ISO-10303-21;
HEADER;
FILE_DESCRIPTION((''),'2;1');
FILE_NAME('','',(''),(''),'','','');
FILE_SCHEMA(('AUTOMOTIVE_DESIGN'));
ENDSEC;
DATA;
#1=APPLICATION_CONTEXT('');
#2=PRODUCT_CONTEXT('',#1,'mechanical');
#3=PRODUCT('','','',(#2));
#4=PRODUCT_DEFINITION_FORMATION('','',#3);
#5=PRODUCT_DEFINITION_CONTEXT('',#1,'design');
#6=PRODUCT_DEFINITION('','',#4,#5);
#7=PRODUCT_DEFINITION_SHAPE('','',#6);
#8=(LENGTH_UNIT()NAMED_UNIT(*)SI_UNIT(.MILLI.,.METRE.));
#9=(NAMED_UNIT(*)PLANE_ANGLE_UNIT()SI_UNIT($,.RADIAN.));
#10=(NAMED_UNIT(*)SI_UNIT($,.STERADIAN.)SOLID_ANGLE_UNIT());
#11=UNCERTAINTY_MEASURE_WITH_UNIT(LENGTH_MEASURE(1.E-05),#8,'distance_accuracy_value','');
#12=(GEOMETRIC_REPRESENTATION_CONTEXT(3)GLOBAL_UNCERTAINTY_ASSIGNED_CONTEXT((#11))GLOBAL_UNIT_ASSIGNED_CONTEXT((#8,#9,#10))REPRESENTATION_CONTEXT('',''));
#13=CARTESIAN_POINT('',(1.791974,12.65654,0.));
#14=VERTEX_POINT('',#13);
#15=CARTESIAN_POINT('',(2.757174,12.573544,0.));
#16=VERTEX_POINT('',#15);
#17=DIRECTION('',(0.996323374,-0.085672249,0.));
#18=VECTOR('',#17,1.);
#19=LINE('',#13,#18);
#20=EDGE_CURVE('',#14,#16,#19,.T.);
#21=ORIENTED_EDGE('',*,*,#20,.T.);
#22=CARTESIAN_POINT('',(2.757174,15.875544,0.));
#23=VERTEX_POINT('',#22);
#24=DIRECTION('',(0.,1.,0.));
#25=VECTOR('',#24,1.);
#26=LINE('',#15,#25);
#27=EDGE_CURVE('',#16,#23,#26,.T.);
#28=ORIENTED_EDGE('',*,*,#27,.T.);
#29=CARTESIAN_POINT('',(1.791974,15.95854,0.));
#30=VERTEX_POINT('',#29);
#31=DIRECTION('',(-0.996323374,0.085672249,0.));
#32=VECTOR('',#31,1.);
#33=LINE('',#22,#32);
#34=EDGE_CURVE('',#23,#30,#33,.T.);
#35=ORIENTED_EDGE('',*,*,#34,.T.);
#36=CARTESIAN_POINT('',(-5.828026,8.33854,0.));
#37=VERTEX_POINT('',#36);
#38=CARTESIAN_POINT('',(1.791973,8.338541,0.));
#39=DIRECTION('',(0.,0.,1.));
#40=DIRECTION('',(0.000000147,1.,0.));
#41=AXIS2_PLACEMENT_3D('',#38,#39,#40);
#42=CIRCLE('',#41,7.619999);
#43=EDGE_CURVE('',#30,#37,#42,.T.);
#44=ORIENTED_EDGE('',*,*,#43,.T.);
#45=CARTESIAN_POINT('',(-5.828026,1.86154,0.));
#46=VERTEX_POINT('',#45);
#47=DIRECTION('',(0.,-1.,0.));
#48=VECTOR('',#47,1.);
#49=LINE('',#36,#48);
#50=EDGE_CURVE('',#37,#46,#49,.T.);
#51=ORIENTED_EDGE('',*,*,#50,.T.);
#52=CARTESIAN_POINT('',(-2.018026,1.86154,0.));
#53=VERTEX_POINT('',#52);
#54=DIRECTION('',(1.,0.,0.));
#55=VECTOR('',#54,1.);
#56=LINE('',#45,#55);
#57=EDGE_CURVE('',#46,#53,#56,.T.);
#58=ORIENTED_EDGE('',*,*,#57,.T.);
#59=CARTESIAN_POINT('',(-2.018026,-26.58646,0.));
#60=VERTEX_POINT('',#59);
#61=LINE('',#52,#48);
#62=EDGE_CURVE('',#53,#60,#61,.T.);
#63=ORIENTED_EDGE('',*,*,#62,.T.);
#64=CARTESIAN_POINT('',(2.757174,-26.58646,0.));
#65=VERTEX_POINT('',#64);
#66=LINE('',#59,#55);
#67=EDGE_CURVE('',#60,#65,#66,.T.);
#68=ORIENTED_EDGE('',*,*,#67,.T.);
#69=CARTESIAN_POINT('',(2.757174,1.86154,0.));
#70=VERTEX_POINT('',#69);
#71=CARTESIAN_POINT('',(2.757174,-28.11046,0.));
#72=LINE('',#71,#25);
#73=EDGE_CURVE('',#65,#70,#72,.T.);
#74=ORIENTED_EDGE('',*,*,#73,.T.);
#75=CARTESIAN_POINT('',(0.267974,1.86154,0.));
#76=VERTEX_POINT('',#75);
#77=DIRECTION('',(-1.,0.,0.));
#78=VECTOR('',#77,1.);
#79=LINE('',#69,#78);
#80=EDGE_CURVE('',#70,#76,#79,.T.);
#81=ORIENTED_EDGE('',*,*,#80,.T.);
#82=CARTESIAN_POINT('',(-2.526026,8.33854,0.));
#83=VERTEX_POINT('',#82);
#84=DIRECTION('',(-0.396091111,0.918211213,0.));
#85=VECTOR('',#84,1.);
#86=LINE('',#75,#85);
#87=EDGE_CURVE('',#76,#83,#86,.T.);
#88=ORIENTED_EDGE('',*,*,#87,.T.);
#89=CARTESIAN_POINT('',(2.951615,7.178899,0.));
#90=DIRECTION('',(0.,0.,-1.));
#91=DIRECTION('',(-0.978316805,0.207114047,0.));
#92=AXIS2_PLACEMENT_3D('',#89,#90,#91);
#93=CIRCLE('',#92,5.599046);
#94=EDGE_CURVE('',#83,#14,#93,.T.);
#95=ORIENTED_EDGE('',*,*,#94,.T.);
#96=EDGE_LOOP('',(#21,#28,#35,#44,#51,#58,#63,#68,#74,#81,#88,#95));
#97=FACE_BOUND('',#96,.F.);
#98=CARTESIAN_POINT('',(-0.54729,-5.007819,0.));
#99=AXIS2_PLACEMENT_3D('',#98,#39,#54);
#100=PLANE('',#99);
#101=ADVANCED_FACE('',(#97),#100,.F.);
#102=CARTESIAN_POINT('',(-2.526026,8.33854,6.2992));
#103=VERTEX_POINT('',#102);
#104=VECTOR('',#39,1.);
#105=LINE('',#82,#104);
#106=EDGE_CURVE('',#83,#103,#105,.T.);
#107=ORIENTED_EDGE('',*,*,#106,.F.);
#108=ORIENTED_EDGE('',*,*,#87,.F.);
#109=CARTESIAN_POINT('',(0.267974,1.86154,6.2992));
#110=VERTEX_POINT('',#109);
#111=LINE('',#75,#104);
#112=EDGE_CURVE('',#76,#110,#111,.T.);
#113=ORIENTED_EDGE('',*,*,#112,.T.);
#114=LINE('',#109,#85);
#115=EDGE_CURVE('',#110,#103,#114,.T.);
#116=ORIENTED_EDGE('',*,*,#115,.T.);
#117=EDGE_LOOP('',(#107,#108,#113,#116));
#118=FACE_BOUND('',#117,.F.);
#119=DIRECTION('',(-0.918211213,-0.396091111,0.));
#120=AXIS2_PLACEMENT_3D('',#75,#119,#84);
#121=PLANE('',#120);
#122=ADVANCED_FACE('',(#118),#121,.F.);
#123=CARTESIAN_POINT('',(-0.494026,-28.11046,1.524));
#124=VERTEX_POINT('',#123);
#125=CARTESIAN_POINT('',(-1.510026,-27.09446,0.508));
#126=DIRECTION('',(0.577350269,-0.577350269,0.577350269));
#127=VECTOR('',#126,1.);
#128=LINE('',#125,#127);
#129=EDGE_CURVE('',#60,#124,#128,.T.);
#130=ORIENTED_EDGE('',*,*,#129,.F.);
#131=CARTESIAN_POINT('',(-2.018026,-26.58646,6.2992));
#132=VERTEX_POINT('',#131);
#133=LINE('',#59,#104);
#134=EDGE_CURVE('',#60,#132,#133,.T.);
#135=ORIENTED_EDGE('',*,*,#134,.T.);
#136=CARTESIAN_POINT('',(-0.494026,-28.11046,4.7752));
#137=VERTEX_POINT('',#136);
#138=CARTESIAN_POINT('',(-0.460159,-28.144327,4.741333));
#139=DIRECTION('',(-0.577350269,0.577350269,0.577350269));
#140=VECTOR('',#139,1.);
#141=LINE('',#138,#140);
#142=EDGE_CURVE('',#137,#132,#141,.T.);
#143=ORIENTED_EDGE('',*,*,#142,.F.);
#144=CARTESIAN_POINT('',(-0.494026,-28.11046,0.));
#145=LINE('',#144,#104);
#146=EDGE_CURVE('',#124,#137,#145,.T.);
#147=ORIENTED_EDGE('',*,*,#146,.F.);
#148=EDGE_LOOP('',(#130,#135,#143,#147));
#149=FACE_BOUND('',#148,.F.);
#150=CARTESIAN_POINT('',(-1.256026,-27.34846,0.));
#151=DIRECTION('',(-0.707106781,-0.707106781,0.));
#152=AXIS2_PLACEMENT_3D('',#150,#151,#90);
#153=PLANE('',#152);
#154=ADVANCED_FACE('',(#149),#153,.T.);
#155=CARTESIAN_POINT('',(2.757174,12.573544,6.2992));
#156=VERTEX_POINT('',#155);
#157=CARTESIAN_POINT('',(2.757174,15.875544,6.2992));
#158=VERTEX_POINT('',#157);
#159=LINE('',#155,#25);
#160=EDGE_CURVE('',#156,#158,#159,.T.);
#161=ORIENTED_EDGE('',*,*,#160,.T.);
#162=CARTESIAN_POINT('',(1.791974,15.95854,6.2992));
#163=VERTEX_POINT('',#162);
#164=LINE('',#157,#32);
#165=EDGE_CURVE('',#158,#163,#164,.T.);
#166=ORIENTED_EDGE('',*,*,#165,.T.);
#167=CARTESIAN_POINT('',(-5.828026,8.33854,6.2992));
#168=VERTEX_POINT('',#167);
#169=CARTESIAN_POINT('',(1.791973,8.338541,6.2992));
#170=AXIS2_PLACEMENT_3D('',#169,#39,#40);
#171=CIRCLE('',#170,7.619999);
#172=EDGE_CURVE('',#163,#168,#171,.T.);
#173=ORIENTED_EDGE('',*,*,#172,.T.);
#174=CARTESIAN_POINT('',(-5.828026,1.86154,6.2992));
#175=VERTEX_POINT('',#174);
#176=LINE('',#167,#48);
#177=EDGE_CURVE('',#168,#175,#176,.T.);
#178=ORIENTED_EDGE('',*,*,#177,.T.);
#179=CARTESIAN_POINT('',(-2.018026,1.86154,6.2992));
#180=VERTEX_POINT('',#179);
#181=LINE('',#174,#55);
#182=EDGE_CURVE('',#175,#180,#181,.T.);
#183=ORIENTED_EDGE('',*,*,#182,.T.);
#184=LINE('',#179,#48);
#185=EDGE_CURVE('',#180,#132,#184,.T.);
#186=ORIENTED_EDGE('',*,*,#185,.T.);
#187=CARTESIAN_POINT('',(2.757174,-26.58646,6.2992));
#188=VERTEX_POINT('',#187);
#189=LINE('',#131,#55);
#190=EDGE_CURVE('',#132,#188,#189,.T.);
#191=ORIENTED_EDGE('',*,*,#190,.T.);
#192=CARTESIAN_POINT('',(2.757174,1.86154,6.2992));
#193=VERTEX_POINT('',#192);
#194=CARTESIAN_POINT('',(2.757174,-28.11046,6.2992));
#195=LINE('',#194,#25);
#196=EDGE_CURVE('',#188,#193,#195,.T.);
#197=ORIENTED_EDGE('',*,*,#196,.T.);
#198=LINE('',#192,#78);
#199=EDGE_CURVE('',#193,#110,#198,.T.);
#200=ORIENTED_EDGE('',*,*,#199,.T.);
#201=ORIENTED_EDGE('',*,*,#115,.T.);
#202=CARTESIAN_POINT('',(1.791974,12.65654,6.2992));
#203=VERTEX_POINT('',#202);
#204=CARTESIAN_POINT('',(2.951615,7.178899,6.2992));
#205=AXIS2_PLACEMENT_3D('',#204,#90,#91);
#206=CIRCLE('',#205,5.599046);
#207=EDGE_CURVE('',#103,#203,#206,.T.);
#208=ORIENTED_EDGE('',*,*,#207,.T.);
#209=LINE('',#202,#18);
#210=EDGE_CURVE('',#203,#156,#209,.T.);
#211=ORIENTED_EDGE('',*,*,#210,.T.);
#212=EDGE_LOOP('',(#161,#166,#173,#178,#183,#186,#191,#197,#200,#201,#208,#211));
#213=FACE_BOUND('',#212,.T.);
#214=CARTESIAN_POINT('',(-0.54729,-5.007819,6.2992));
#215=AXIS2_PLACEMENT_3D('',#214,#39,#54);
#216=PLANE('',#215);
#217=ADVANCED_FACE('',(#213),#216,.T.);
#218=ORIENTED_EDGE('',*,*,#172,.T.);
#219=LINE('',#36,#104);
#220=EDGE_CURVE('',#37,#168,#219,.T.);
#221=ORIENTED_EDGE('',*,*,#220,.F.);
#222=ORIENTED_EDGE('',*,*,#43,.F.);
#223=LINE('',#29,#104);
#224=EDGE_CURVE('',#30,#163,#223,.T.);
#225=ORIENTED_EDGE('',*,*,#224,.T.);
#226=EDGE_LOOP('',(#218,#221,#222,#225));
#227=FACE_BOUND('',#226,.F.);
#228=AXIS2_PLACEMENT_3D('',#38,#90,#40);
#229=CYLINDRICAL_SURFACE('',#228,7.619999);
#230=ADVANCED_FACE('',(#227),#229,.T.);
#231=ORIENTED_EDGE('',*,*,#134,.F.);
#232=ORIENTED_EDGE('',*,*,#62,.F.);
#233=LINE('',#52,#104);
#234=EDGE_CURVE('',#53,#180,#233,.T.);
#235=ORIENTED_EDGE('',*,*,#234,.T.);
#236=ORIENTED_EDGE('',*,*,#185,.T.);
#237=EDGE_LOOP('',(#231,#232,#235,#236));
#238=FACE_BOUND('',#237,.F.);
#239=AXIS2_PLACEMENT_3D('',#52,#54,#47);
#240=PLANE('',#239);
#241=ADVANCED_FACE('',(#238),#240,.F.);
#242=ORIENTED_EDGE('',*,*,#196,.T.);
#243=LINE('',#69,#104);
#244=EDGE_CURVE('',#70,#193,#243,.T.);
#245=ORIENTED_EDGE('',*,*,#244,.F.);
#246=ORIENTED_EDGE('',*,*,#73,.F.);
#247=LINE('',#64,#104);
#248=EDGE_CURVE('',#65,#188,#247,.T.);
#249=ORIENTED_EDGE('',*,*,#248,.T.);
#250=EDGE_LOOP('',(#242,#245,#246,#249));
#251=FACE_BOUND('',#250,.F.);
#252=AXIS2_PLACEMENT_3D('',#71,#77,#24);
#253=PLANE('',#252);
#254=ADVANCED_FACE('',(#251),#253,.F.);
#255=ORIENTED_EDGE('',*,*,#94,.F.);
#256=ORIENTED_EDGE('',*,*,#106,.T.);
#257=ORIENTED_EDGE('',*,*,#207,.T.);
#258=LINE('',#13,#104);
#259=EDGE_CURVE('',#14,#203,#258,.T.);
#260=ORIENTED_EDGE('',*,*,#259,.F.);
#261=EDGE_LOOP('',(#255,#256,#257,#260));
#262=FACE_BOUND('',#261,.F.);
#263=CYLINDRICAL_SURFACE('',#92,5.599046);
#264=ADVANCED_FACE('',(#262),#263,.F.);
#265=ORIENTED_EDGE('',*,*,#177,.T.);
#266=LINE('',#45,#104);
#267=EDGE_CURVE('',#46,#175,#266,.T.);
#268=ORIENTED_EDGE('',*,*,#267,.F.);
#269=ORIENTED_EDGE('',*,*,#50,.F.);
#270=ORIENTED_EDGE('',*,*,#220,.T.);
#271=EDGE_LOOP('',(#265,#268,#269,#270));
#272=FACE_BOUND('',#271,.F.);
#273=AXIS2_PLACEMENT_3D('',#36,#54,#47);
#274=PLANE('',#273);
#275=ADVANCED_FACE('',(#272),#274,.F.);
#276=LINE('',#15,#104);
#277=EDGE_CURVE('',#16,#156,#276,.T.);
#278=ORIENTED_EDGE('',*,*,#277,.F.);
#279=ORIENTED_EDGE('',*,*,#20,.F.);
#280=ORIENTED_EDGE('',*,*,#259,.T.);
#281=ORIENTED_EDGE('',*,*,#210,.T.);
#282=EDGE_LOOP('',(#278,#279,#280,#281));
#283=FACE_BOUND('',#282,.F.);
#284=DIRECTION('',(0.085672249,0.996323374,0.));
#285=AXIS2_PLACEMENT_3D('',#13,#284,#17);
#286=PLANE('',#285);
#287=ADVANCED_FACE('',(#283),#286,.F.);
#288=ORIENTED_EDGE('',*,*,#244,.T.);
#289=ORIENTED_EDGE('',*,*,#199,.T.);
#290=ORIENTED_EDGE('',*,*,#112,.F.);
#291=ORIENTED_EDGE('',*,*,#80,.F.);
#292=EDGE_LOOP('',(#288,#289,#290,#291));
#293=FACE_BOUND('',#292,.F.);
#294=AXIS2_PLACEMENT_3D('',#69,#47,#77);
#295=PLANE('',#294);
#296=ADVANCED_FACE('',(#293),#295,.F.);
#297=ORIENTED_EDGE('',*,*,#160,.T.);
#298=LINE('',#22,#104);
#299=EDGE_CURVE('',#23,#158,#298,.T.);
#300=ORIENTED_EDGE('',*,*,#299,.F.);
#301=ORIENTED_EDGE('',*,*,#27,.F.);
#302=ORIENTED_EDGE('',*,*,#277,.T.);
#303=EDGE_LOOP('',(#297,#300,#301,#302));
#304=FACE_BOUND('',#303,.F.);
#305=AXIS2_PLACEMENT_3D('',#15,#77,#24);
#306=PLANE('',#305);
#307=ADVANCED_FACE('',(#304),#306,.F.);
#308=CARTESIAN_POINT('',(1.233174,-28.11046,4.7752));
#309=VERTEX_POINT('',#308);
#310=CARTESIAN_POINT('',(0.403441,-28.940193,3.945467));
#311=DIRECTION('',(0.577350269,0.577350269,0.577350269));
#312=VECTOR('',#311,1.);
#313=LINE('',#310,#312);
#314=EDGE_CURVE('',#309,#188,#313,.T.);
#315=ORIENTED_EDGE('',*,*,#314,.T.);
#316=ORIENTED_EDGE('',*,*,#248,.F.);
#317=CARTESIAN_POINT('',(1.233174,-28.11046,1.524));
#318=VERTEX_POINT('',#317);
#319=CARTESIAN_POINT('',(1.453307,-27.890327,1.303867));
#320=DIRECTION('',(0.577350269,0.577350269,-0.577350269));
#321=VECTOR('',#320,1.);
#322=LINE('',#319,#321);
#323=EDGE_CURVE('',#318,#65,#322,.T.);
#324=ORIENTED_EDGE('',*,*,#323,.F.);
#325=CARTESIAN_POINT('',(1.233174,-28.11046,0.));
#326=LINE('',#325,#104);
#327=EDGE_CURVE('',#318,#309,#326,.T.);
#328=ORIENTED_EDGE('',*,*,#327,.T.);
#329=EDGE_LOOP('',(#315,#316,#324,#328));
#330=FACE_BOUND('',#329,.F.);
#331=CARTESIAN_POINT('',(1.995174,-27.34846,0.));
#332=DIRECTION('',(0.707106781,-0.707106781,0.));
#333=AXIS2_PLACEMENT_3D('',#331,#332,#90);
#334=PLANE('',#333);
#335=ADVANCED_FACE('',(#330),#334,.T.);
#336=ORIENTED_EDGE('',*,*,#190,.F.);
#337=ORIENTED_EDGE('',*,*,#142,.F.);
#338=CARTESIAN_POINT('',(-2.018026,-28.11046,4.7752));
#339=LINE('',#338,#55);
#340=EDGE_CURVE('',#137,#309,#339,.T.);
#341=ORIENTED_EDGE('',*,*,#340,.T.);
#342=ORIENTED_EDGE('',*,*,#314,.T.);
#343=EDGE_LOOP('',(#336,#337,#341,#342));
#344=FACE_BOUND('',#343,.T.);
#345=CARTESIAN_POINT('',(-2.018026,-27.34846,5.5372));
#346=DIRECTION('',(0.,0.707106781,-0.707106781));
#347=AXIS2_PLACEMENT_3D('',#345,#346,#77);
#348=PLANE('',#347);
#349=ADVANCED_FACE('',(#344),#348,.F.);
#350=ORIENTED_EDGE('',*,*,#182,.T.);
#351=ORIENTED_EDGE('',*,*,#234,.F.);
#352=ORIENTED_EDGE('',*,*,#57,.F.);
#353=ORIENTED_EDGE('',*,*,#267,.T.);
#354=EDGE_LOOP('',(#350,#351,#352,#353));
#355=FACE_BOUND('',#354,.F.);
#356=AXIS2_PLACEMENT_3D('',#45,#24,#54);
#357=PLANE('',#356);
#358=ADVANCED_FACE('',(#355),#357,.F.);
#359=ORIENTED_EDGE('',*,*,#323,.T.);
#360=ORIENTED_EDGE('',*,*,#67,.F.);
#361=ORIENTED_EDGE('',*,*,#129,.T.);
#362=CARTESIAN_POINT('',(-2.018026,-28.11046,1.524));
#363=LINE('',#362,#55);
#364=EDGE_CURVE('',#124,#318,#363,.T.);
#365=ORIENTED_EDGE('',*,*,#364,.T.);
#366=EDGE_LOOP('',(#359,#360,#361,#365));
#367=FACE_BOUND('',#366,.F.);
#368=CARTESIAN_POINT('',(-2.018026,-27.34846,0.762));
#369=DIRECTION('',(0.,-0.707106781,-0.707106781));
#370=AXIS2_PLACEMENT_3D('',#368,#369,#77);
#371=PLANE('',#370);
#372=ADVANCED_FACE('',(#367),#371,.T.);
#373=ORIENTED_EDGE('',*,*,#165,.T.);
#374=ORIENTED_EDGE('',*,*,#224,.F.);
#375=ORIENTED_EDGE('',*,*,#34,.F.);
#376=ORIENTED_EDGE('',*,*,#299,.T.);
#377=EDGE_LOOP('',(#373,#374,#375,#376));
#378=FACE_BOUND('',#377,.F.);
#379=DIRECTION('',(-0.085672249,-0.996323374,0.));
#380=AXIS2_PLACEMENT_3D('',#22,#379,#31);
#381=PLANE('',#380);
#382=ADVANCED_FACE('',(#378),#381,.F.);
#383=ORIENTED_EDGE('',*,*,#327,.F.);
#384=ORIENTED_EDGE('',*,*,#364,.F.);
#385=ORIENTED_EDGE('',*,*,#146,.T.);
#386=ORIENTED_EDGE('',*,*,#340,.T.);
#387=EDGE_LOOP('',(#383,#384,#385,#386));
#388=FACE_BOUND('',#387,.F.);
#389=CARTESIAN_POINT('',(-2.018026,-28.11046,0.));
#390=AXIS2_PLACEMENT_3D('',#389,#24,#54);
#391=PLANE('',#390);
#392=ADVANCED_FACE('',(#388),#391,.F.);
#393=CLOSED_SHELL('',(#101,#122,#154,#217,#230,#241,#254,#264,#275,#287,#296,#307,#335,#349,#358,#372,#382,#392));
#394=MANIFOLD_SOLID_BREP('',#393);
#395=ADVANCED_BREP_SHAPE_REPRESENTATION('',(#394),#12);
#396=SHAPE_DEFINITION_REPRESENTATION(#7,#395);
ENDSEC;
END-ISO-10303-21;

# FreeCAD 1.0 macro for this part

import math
import FreeCAD as App
import Part
import Sketcher
Q = App.Units.Quantity


def edges_at(feature, points):
    """Names of the edges that pass closest to the given points."""
    edges = feature.Shape.Edges
    near = lambda p: min(range(len(edges)), key=lambda i: edges[i].distToShape(Part.Vertex(*p))[0])
    return sorted({f"Edge{near(p) + 1}" for p in points})

doc = App.newDocument("Part")
params = doc.addObject("Spreadsheet::Sheet", "Params")
for row, (alias, value) in enumerate([
    ("sketch1_radius", "0.3 in"),
    ("sketch1_width", "0.15 in"),
    ("sketch1_height", "1.18 in"),
    ("sketch1_height2", "0.13 in"),
    ("sketch1_width2", "0.188 in"),
    ("pad1_length", "0.248 in"),
    ("chamfer_size", "0.06 in"),
], start=1):
    params.set(f"A{row}", alias)
    params.set(f"B{row}", "=" + value)
    params.setAlias(f"B{row}", alias)

body = doc.addObject("PartDesign::Body", "Body")

sketch1 = body.newObject("Sketcher::SketchObject", "Sketch")
sketch1.AttachmentSupport = (doc.getObject("XY_Plane"), [""])
sketch1.MapMode = "FlatFace"
sketch1.addGeometry([
    Part.LineSegment(App.Vector(-2, 1.9, 0), App.Vector(-2, -28.1, 0)),
    Part.LineSegment(App.Vector(-2, -28.1, 0), App.Vector(2.8, -28.1, 0)),
    Part.LineSegment(App.Vector(2.8, -28.1, 0), App.Vector(2.8, 1.9, 0)),
    Part.LineSegment(App.Vector(2.8, 1.9, 0), App.Vector(0.3, 1.9, 0)),
    Part.LineSegment(App.Vector(0.3, 1.9, 0), App.Vector(-2.5, 8.3, 0)),
    Part.ArcOfCircle(Part.Circle(App.Vector(3, 7.2, 0), App.Vector(0, 0, 1), 5.6), math.radians(102), math.radians(168)),
    Part.LineSegment(App.Vector(1.8, 12.7, 0), App.Vector(2.8, 12.6, 0)),
    Part.LineSegment(App.Vector(2.8, 12.6, 0), App.Vector(2.8, 15.9, 0)),
    Part.LineSegment(App.Vector(2.8, 15.9, 0), App.Vector(1.8, 16, 0)),
    Part.ArcOfCircle(Part.Circle(App.Vector(1.8, 8.3, 0), App.Vector(0, 0, 1), 7.6), math.radians(90), math.radians(180)),
    Part.LineSegment(App.Vector(-5.8, 8.3, 0), App.Vector(-5.8, 1.9, 0)),
    Part.LineSegment(App.Vector(-5.8, 1.9, 0), App.Vector(-2, 1.9, 0)),
], False)
sketch1.addConstraint([
    Sketcher.Constraint("Coincident", 0, 2, 1, 1),
    Sketcher.Constraint("Coincident", 1, 2, 2, 1),
    Sketcher.Constraint("Coincident", 2, 2, 3, 1),
    Sketcher.Constraint("Coincident", 3, 2, 4, 1),
    Sketcher.Constraint("Coincident", 4, 2, 5, 2),
    Sketcher.Constraint("Coincident", 5, 1, 6, 1),
    Sketcher.Constraint("Coincident", 6, 2, 7, 1),
    Sketcher.Constraint("Coincident", 7, 2, 8, 1),
    Sketcher.Constraint("Coincident", 8, 2, 9, 1),
    Sketcher.Constraint("Tangent", 9, 2, 10, 1),
    Sketcher.Constraint("Coincident", 10, 2, 11, 1),
    Sketcher.Constraint("Coincident", 11, 2, 0, 1),
    Sketcher.Constraint("Vertical", 0),
    Sketcher.Constraint("Horizontal", 1),
    Sketcher.Constraint("Vertical", 2),
    Sketcher.Constraint("Horizontal", 3),
    Sketcher.Constraint("Vertical", 7),
    Sketcher.Constraint("Vertical", 10),
    Sketcher.Constraint("Horizontal", 11),
    Sketcher.Constraint("Parallel", 6, 8),
    Sketcher.Constraint("Horizontal", 9, 3, 4, 2),
    Sketcher.Constraint("Horizontal", 3, 2, 10, 2),
    Sketcher.Constraint("Vertical", 9, 3, 5, 1),
    Sketcher.Constraint("Vertical", 2, 2, 6, 2),
    Sketcher.Constraint("Vertical", 5, 1, 8, 2),
    Sketcher.Constraint("Radius", 9, Q("0.3 in")),
    Sketcher.Constraint("DistanceX", 11, 1, 11, 2, Q("0.15 in")),
    Sketcher.Constraint("DistanceY", 0, 2, 0, 1, Q("1.18 in")),
    Sketcher.Constraint("DistanceY", 7, 1, 7, 2, Q("0.13 in")),
    Sketcher.Constraint("DistanceX", 1, 1, 1, 2, Q("0.188 in")),
    Sketcher.Constraint("DistanceX", 3, 2, 3, 1, Q("0.098 in")),
    Sketcher.Constraint("DistanceY", 10, 2, 10, 1, Q("0.255 in")),
    Sketcher.Constraint("DistanceX", 4, 2, 9, 3, Q("0.17 in")),
    Sketcher.Constraint("Radius", 5, 5.599046),
    Sketcher.Constraint("DistanceY", -1, 1, 5, 3, 7.178899),
    Sketcher.Constraint("Distance", 6, 0.968762),
    Sketcher.Constraint("DistanceX", -1, 1, 5, 3, 2.951615),
])
sketch1.setExpression("Constraints[25]", "Params.sketch1_radius")
sketch1.setExpression("Constraints[26]", "Params.sketch1_width")
sketch1.setExpression("Constraints[27]", "Params.sketch1_height")
sketch1.setExpression("Constraints[28]", "Params.sketch1_height2")
sketch1.setExpression("Constraints[29]", "Params.sketch1_width2")
pad1 = body.newObject("PartDesign::Pad", "Pad")
pad1.Profile = sketch1
pad1.setExpression("Length", "Params.pad1_length")
doc.recompute()

chamfer = body.newObject("PartDesign::Chamfer", "Chamfer")
chamfer.Base = (pad1, edges_at(pad1, [
    (0.37, -28.11, 6.299),
    (-2.018, -28.11, 3.15),
    (2.757, -28.11, 3.15),
    (0.37, -28.11, 0),
]))
chamfer.setExpression("Size", "Params.chamfer_size")

doc.recompute()
